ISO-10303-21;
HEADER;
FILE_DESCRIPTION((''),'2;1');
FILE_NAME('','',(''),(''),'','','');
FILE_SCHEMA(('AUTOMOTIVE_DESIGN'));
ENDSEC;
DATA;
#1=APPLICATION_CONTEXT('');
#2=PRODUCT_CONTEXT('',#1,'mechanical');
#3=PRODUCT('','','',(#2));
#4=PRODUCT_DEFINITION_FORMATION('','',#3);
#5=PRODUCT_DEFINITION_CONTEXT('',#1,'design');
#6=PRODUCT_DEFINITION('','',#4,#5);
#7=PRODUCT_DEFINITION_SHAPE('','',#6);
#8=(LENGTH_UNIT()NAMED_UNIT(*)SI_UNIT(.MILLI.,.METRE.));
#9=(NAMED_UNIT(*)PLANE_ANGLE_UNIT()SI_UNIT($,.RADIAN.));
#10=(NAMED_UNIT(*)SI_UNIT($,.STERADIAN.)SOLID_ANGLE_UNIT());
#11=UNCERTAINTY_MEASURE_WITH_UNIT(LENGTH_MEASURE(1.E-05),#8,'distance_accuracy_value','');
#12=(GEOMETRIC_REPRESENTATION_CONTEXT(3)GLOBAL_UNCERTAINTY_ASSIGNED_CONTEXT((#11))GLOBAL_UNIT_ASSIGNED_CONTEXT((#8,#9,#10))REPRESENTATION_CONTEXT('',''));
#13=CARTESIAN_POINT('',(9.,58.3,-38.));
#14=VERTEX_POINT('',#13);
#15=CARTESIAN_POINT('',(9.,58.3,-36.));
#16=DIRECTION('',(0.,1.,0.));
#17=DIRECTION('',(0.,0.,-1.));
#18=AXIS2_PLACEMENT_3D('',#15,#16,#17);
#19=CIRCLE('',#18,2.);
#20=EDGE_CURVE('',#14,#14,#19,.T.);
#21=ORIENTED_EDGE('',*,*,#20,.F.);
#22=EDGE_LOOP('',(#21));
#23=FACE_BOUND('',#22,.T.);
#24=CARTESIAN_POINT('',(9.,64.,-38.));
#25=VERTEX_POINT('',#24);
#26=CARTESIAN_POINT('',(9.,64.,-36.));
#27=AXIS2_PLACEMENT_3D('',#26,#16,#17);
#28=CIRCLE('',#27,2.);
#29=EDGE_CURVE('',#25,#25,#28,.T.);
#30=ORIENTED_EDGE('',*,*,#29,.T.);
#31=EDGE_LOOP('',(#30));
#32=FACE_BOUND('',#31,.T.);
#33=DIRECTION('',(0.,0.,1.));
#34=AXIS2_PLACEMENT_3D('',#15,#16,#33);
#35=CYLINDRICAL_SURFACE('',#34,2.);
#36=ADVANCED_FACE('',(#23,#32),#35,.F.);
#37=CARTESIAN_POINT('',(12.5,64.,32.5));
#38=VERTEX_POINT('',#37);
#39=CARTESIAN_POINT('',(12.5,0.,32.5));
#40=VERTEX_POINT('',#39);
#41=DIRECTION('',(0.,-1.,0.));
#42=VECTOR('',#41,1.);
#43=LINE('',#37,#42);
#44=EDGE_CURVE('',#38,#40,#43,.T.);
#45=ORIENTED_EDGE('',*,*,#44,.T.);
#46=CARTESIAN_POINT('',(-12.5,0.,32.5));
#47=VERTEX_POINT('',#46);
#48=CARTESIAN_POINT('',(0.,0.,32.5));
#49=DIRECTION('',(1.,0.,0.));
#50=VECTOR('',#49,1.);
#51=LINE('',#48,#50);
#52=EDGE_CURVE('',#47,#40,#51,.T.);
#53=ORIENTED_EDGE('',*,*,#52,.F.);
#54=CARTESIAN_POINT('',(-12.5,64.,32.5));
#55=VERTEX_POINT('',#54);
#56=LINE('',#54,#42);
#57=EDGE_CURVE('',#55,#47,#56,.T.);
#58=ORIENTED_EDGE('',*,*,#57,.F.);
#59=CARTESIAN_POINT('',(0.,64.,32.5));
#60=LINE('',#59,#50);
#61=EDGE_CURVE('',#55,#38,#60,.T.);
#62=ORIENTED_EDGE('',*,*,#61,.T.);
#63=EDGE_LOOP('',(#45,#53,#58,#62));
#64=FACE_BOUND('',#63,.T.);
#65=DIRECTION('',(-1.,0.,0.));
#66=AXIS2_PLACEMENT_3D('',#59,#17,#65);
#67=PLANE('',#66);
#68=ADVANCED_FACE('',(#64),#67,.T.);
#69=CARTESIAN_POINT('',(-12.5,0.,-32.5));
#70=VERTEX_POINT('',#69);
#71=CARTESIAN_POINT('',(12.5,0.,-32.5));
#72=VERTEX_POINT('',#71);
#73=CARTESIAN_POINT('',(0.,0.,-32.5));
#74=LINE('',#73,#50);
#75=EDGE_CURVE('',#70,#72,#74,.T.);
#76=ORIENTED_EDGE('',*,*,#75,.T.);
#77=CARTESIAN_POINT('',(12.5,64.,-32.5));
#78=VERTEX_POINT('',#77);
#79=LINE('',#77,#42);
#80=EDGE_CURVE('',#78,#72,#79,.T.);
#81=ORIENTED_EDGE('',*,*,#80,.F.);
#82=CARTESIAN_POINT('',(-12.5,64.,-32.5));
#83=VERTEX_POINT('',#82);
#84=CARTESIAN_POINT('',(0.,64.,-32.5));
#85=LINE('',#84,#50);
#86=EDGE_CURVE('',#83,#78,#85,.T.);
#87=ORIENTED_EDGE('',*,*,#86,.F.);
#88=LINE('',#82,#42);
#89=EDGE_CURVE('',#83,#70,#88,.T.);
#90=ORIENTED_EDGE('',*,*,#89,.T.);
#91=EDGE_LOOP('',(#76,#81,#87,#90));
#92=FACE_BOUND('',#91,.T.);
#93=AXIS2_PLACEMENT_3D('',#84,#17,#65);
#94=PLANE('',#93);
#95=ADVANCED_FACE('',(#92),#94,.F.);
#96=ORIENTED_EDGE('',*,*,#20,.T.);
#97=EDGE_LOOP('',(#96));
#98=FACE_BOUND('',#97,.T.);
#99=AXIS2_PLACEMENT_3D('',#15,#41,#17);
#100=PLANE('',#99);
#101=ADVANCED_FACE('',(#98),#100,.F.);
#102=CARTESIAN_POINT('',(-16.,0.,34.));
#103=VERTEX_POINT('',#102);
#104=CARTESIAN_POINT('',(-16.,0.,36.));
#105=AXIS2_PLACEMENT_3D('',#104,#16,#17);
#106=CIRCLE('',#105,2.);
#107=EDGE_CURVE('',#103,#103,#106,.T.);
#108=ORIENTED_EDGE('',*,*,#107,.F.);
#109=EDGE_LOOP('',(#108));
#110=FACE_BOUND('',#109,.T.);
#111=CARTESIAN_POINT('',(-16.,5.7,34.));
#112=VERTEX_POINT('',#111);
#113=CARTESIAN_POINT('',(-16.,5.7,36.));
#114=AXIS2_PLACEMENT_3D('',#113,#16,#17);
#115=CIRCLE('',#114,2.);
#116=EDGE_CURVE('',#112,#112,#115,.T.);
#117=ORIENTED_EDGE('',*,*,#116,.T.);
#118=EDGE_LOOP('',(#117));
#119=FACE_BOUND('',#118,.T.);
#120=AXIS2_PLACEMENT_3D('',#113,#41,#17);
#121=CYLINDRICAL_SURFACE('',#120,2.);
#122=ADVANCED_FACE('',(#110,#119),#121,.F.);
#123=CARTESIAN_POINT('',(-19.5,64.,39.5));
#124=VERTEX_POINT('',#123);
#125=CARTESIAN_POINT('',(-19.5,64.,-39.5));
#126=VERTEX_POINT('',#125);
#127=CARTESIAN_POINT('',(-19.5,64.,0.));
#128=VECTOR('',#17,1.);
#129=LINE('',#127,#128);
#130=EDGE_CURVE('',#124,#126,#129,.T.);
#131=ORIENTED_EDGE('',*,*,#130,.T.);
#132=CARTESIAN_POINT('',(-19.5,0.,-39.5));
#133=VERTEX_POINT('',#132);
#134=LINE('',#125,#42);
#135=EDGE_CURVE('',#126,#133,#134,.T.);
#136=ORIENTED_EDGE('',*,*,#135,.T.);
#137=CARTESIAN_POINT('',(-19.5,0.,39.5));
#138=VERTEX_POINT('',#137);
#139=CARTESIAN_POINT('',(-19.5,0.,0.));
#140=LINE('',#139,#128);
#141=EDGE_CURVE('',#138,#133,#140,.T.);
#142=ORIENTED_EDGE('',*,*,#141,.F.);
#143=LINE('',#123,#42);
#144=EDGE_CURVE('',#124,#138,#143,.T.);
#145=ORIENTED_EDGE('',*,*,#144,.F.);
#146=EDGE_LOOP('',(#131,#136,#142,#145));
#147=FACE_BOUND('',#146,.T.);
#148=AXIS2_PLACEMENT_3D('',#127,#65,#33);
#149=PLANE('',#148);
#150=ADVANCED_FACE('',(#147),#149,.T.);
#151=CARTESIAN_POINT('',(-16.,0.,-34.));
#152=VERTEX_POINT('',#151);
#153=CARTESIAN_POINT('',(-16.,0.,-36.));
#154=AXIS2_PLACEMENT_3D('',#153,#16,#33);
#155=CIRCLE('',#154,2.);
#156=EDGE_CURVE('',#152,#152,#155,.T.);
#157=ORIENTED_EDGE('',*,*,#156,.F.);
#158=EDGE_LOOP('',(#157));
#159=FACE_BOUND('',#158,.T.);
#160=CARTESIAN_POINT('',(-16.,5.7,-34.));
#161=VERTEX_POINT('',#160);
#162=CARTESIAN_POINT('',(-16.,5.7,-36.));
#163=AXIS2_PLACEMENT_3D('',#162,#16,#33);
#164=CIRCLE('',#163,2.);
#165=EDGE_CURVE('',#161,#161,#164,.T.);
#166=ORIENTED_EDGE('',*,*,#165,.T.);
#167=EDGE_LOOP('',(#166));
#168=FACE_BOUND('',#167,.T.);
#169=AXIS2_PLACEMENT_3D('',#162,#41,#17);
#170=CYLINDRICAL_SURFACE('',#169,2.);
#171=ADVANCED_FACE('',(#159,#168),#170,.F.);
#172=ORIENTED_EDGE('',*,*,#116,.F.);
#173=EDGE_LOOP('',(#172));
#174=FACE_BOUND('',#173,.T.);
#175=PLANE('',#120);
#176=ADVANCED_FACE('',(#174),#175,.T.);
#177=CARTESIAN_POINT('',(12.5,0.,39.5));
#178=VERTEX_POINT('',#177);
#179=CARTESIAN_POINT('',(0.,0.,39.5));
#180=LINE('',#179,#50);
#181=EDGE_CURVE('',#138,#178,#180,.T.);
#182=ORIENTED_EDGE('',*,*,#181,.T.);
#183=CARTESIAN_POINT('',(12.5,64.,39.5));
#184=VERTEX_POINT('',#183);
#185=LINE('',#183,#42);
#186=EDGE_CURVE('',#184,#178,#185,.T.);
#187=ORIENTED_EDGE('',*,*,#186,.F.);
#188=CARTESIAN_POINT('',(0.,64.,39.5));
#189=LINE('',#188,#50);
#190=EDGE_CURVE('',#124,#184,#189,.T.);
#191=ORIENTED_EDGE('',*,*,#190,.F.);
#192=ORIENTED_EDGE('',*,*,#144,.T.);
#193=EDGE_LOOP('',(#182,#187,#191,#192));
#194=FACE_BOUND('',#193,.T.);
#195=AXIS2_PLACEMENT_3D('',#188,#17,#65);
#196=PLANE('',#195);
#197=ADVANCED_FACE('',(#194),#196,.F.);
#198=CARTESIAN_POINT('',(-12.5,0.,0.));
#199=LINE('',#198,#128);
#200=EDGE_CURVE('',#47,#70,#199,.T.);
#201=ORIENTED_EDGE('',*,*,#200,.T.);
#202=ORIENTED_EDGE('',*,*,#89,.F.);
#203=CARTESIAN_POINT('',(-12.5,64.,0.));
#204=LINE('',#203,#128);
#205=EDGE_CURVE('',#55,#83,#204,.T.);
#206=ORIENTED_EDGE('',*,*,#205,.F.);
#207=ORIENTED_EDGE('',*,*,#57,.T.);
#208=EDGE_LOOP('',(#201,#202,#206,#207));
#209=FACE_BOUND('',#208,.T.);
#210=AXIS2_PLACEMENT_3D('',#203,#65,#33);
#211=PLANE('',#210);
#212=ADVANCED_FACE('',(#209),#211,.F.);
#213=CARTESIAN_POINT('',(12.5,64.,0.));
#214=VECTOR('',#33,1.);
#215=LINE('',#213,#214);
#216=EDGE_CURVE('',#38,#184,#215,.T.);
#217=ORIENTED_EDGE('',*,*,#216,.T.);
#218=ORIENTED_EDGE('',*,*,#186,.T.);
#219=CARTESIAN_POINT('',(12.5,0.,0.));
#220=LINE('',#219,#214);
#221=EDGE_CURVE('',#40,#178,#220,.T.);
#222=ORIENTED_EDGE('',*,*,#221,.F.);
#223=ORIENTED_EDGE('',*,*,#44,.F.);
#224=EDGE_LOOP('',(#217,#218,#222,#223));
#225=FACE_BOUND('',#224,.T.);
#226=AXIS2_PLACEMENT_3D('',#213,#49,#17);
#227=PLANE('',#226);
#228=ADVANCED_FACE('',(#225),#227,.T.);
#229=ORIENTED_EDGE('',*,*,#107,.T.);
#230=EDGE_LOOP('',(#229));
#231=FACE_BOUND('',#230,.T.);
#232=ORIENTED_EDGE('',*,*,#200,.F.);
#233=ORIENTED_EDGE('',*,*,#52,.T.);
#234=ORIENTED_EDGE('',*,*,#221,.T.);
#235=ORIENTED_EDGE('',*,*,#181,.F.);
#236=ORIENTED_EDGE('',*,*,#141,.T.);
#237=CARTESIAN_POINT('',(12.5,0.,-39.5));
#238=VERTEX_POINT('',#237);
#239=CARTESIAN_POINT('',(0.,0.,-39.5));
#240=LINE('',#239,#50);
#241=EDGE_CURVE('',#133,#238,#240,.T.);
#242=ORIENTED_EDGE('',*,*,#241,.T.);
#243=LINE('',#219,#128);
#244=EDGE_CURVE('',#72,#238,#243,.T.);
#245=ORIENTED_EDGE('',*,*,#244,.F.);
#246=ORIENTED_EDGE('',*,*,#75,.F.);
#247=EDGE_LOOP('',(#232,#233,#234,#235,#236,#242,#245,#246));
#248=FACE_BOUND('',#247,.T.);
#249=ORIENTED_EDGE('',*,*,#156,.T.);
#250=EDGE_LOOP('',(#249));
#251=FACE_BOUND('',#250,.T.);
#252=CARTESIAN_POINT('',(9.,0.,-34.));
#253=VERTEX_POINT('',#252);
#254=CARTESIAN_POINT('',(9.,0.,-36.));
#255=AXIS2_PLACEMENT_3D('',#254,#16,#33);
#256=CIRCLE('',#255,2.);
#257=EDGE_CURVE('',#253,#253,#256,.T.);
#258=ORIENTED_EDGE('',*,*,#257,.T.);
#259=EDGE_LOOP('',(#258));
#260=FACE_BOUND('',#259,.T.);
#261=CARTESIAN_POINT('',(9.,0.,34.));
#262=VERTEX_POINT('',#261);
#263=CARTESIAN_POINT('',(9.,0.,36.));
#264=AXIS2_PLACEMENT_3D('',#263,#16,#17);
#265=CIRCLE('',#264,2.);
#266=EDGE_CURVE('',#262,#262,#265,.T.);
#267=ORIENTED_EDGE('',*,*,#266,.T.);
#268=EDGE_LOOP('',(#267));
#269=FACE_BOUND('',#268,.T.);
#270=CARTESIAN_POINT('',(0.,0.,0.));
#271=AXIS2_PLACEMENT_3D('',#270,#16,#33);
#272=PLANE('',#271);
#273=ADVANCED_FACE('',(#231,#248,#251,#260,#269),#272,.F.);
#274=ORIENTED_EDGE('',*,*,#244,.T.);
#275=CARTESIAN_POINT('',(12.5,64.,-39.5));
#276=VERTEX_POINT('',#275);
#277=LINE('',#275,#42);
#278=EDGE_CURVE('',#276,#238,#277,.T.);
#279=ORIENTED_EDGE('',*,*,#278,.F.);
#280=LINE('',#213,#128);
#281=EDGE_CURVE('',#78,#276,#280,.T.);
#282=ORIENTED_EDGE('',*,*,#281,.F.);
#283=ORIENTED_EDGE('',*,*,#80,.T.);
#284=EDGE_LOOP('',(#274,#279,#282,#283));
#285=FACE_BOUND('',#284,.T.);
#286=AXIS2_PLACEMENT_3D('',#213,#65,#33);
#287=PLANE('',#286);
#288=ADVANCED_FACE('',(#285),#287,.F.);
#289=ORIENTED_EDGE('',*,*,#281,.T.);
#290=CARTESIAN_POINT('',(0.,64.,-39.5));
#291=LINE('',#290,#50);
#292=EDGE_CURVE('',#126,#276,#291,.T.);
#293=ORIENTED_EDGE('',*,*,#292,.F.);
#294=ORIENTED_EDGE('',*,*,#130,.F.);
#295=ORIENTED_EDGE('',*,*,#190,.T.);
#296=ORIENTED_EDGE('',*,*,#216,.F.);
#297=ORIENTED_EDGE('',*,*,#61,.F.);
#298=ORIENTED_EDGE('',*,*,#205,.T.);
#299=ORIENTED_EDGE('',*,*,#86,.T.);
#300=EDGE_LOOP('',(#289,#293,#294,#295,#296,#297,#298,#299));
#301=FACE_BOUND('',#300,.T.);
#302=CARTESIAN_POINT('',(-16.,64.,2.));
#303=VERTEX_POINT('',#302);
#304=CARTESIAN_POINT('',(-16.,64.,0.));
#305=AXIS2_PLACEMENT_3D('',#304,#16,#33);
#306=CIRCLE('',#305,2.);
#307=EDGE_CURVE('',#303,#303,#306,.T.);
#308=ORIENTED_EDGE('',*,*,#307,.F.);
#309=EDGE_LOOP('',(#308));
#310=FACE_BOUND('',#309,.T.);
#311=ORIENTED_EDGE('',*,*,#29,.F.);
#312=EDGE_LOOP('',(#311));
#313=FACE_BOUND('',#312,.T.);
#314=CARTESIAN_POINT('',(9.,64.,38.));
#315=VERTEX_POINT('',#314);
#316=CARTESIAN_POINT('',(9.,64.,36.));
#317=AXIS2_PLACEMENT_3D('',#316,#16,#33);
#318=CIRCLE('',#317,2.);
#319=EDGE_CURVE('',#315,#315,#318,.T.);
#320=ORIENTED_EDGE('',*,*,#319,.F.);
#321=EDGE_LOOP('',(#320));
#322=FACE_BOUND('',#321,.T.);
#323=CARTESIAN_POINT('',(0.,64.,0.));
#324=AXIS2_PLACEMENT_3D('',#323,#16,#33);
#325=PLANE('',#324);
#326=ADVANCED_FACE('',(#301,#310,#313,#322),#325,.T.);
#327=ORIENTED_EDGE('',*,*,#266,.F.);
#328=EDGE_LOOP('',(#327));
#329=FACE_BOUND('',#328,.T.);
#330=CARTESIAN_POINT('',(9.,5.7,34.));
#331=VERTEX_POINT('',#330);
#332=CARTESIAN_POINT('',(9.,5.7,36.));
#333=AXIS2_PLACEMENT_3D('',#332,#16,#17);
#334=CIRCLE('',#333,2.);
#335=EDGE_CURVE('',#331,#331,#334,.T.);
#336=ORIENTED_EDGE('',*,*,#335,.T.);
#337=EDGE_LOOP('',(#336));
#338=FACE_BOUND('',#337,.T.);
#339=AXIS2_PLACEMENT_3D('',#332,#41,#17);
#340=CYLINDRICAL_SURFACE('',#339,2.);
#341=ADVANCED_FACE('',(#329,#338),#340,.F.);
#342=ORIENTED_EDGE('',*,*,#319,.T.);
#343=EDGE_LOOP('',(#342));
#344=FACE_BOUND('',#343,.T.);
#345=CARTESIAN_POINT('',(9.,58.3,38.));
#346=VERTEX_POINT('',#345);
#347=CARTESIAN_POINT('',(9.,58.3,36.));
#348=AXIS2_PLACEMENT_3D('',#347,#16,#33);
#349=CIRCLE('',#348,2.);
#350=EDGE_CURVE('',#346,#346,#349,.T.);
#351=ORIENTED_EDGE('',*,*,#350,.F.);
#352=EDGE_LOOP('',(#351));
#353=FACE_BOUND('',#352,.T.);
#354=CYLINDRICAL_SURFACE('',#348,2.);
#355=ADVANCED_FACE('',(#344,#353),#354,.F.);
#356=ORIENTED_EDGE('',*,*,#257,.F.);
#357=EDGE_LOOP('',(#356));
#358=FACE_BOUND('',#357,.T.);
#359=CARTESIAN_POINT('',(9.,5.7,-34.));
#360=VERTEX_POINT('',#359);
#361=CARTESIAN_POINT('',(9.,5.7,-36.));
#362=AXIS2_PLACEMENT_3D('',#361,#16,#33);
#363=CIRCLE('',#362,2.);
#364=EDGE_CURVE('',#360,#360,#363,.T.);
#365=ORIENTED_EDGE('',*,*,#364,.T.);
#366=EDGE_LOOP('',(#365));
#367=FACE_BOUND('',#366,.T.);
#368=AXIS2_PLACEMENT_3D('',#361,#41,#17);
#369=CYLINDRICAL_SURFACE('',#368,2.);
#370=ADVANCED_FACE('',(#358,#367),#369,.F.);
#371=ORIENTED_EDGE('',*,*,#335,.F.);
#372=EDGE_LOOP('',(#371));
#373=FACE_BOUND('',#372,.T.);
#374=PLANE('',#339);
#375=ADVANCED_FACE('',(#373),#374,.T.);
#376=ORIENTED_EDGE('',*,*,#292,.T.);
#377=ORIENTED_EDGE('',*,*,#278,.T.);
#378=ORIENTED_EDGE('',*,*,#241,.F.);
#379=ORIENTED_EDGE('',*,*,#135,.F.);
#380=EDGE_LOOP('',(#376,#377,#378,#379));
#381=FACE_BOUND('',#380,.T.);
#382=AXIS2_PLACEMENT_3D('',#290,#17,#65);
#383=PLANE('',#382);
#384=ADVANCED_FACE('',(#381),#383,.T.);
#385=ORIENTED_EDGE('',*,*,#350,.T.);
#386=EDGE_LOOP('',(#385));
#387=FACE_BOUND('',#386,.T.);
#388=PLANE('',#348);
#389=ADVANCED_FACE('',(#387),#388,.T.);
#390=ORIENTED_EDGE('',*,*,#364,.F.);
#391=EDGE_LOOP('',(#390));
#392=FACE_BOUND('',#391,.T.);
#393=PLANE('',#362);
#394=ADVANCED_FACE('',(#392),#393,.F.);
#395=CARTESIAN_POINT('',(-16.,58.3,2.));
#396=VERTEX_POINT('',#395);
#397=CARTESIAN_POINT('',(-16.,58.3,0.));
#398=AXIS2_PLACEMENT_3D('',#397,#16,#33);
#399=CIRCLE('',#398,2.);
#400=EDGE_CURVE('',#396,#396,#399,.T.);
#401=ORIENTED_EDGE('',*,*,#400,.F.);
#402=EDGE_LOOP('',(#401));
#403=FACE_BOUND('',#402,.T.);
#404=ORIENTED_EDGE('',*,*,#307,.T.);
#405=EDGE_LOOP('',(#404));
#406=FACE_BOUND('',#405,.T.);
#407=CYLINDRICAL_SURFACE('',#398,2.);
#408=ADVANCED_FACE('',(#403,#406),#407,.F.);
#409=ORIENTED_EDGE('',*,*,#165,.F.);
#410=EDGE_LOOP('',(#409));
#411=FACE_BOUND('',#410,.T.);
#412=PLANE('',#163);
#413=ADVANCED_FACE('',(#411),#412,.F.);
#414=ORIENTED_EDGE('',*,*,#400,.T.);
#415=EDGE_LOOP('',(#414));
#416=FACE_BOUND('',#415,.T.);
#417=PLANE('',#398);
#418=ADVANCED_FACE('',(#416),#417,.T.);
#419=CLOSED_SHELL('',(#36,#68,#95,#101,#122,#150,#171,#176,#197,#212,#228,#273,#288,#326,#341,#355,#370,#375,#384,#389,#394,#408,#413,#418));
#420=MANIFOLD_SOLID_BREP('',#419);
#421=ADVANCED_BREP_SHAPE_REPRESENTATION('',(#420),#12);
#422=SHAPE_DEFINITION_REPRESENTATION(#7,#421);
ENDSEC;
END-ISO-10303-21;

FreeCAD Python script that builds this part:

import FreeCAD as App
import Part
import Sketcher
Q = App.Units.Quantity


def add_polygon(sketch, points):
    """Adds a closed chain of lines whose ends are joined by coincident constraints."""
    first, n = sketch.GeometryCount, len(points)
    for a, b in zip(points, points[1:] + points[:1]):
        sketch.addGeometry(Part.LineSegment(App.Vector(*a, 0), App.Vector(*b, 0)), False)
    for i in range(n):
        sketch.addConstraint(Sketcher.Constraint("Coincident", first + i, 2, first + (i + 1) % n, 1))

doc = App.newDocument("Part")
params = doc.addObject("Spreadsheet::Sheet", "Params")
for row, (alias, value) in enumerate([
    ("sketch1_width", "32 mm"),
    ("sketch1_width2", "25 mm"),
    ("sketch1_height", "79 mm"),
    ("sketch1_height2", "7 mm"),
    ("pad1_length", "64 mm"),
    ("sketch2_diameter", "4 mm"),
    ("pocket1_length", "5.7 mm"),
    ("sketch3_diameter", "4 mm"),
    ("pocket2_length", "5.7 mm"),
], start=1):
    params.set(f"A{row}", alias)
    params.set(f"B{row}", "=" + value)
    params.setAlias(f"B{row}", alias)

body = doc.addObject("PartDesign::Body", "Body")

sketch1 = doc.addObject("Sketcher::SketchObject", "Sketch")
body.addObject(sketch1)
sketch1.AttachmentSupport = (doc.XZ_Plane, [""])
sketch1.MapMode = "FlatFace"
add_polygon(sketch1, [(-19.5, -39.5), (-19.5, 39.5), (12.5, 39.5), (12.5, 32.5), (-12.5, 32.5), (-12.5, -32.5), (12.5, -32.5), (12.5, -39.5)])
sketch1.addConstraint(Sketcher.Constraint("Vertical", 0))
sketch1.addConstraint(Sketcher.Constraint("Horizontal", 1))
sketch1.addConstraint(Sketcher.Constraint("Vertical", 2))
sketch1.addConstraint(Sketcher.Constraint("Horizontal", 3))
sketch1.addConstraint(Sketcher.Constraint("Vertical", 4))
sketch1.addConstraint(Sketcher.Constraint("Horizontal", 5))
sketch1.addConstraint(Sketcher.Constraint("Vertical", 6))
sketch1.addConstraint(Sketcher.Constraint("Horizontal", 7))
sketch1.addConstraint(Sketcher.Constraint("Symmetric", 2, 2, 4, 2, -1, 1))
sketch1.addConstraint(Sketcher.Constraint("Symmetric", 1, 2, 6, 2, -1))
sketch1.addConstraint(Sketcher.Constraint("DistanceX", 1, 1, 1, 2, Q("32 mm")))
sketch1.addConstraint(Sketcher.Constraint("DistanceX", 3, 2, 3, 1, Q("25 mm")))
sketch1.addConstraint(Sketcher.Constraint("DistanceY", 0, 1, 0, 2, Q("79 mm")))
sketch1.addConstraint(Sketcher.Constraint("DistanceY", 2, 2, 2, 1, Q("7 mm")))
sketch1.setExpression("Constraints[18]", "Params.sketch1_width")
sketch1.setExpression("Constraints[19]", "Params.sketch1_width2")
sketch1.setExpression("Constraints[20]", "Params.sketch1_height")
sketch1.setExpression("Constraints[21]", "Params.sketch1_height2")
pad1 = doc.addObject("PartDesign::Pad", "Pad")
body.addObject(pad1)
pad1.Profile = sketch1
pad1.setExpression("Length", "Params.pad1_length")
pad1.Reversed = True

sketch2 = doc.addObject("Sketcher::SketchObject", "Sketch001")
body.addObject(sketch2)
sketch2.AttachmentSupport = (doc.XZ_Plane, [""])
sketch2.MapMode = "FlatFace"
sketch2.addGeometry(Part.Circle(App.Vector(-16, -36, 0), App.Vector(0, 0, 1), 2), False)
sketch2.addGeometry(Part.Circle(App.Vector(-16, 36, 0), App.Vector(0, 0, 1), 2), False)
sketch2.addGeometry(Part.Circle(App.Vector(9, -36, 0), App.Vector(0, 0, 1), 2), False)
sketch2.addGeometry(Part.Circle(App.Vector(9, 36, 0), App.Vector(0, 0, 1), 2), False)
sketch2.addConstraint(Sketcher.Constraint("Equal", 0, 1))
sketch2.addConstraint(Sketcher.Constraint("Equal", 1, 2))
sketch2.addConstraint(Sketcher.Constraint("Equal", 2, 3))
sketch2.addConstraint(Sketcher.Constraint("Symmetric", 0, 3, 1, 3, -1))
sketch2.addConstraint(Sketcher.Constraint("Symmetric", 2, 3, 3, 3, -1))
sketch2.addConstraint(Sketcher.Constraint("Horizontal", 0, 3, 2, 3))
sketch2.addConstraint(Sketcher.Constraint("Diameter", 0, Q("4 mm")))
sketch2.addConstraint(Sketcher.Constraint("DistanceX", 0, 3, -1, 1, Q("16 mm")))
sketch2.addConstraint(Sketcher.Constraint("DistanceY", 0, 3, -1, 1, Q("36 mm")))
sketch2.addConstraint(Sketcher.Constraint("DistanceX", -1, 1, 2, 3, Q("9 mm")))
sketch2.setExpression("Constraints[6]", "Params.sketch2_diameter")
pocket1 = doc.addObject("PartDesign::Pocket", "Pocket")
body.addObject(pocket1)
pocket1.Profile = sketch2
pocket1.setExpression("Length", "Params.pocket1_length")

sketch3 = doc.addObject("Sketcher::SketchObject", "Sketch002")
body.addObject(sketch3)
sketch3.AttachmentSupport = (doc.XZ_Plane, [""])
sketch3.MapMode = "FlatFace"
sketch3.AttachmentOffset = App.Placement(App.Vector(0, 0, -58.3), App.Rotation())
sketch3.addGeometry(Part.Circle(App.Vector(-16, 0, 0), App.Vector(0, 0, 1), 2), False)
sketch3.addGeometry(Part.Circle(App.Vector(9, 36, 0), App.Vector(0, 0, 1), 2), False)
sketch3.addGeometry(Part.Circle(App.Vector(9, -36, 0), App.Vector(0, 0, 1), 2), False)
sketch3.addConstraint(Sketcher.Constraint("Equal", 0, 1))
sketch3.addConstraint(Sketcher.Constraint("Equal", 1, 2))
sketch3.addConstraint(Sketcher.Constraint("Symmetric", 1, 3, 2, 3, -1))
sketch3.addConstraint(Sketcher.Constraint("PointOnObject", 0, 3, -1))
sketch3.addConstraint(Sketcher.Constraint("Diameter", 0, Q("4 mm")))
sketch3.addConstraint(Sketcher.Constraint("DistanceX", 0, 3, -1, 1, Q("16 mm")))
sketch3.addConstraint(Sketcher.Constraint("DistanceX", -1, 1, 1, 3, Q("9 mm")))
sketch3.addConstraint(Sketcher.Constraint("DistanceY", -1, 1, 1, 3, Q("36 mm")))
sketch3.setExpression("Constraints[4]", "Params.sketch3_diameter")
pocket2 = doc.addObject("PartDesign::Pocket", "Pocket001")
body.addObject(pocket2)
pocket2.Profile = sketch3
pocket2.setExpression("Length", "Params.pocket2_length")

doc.recompute()
